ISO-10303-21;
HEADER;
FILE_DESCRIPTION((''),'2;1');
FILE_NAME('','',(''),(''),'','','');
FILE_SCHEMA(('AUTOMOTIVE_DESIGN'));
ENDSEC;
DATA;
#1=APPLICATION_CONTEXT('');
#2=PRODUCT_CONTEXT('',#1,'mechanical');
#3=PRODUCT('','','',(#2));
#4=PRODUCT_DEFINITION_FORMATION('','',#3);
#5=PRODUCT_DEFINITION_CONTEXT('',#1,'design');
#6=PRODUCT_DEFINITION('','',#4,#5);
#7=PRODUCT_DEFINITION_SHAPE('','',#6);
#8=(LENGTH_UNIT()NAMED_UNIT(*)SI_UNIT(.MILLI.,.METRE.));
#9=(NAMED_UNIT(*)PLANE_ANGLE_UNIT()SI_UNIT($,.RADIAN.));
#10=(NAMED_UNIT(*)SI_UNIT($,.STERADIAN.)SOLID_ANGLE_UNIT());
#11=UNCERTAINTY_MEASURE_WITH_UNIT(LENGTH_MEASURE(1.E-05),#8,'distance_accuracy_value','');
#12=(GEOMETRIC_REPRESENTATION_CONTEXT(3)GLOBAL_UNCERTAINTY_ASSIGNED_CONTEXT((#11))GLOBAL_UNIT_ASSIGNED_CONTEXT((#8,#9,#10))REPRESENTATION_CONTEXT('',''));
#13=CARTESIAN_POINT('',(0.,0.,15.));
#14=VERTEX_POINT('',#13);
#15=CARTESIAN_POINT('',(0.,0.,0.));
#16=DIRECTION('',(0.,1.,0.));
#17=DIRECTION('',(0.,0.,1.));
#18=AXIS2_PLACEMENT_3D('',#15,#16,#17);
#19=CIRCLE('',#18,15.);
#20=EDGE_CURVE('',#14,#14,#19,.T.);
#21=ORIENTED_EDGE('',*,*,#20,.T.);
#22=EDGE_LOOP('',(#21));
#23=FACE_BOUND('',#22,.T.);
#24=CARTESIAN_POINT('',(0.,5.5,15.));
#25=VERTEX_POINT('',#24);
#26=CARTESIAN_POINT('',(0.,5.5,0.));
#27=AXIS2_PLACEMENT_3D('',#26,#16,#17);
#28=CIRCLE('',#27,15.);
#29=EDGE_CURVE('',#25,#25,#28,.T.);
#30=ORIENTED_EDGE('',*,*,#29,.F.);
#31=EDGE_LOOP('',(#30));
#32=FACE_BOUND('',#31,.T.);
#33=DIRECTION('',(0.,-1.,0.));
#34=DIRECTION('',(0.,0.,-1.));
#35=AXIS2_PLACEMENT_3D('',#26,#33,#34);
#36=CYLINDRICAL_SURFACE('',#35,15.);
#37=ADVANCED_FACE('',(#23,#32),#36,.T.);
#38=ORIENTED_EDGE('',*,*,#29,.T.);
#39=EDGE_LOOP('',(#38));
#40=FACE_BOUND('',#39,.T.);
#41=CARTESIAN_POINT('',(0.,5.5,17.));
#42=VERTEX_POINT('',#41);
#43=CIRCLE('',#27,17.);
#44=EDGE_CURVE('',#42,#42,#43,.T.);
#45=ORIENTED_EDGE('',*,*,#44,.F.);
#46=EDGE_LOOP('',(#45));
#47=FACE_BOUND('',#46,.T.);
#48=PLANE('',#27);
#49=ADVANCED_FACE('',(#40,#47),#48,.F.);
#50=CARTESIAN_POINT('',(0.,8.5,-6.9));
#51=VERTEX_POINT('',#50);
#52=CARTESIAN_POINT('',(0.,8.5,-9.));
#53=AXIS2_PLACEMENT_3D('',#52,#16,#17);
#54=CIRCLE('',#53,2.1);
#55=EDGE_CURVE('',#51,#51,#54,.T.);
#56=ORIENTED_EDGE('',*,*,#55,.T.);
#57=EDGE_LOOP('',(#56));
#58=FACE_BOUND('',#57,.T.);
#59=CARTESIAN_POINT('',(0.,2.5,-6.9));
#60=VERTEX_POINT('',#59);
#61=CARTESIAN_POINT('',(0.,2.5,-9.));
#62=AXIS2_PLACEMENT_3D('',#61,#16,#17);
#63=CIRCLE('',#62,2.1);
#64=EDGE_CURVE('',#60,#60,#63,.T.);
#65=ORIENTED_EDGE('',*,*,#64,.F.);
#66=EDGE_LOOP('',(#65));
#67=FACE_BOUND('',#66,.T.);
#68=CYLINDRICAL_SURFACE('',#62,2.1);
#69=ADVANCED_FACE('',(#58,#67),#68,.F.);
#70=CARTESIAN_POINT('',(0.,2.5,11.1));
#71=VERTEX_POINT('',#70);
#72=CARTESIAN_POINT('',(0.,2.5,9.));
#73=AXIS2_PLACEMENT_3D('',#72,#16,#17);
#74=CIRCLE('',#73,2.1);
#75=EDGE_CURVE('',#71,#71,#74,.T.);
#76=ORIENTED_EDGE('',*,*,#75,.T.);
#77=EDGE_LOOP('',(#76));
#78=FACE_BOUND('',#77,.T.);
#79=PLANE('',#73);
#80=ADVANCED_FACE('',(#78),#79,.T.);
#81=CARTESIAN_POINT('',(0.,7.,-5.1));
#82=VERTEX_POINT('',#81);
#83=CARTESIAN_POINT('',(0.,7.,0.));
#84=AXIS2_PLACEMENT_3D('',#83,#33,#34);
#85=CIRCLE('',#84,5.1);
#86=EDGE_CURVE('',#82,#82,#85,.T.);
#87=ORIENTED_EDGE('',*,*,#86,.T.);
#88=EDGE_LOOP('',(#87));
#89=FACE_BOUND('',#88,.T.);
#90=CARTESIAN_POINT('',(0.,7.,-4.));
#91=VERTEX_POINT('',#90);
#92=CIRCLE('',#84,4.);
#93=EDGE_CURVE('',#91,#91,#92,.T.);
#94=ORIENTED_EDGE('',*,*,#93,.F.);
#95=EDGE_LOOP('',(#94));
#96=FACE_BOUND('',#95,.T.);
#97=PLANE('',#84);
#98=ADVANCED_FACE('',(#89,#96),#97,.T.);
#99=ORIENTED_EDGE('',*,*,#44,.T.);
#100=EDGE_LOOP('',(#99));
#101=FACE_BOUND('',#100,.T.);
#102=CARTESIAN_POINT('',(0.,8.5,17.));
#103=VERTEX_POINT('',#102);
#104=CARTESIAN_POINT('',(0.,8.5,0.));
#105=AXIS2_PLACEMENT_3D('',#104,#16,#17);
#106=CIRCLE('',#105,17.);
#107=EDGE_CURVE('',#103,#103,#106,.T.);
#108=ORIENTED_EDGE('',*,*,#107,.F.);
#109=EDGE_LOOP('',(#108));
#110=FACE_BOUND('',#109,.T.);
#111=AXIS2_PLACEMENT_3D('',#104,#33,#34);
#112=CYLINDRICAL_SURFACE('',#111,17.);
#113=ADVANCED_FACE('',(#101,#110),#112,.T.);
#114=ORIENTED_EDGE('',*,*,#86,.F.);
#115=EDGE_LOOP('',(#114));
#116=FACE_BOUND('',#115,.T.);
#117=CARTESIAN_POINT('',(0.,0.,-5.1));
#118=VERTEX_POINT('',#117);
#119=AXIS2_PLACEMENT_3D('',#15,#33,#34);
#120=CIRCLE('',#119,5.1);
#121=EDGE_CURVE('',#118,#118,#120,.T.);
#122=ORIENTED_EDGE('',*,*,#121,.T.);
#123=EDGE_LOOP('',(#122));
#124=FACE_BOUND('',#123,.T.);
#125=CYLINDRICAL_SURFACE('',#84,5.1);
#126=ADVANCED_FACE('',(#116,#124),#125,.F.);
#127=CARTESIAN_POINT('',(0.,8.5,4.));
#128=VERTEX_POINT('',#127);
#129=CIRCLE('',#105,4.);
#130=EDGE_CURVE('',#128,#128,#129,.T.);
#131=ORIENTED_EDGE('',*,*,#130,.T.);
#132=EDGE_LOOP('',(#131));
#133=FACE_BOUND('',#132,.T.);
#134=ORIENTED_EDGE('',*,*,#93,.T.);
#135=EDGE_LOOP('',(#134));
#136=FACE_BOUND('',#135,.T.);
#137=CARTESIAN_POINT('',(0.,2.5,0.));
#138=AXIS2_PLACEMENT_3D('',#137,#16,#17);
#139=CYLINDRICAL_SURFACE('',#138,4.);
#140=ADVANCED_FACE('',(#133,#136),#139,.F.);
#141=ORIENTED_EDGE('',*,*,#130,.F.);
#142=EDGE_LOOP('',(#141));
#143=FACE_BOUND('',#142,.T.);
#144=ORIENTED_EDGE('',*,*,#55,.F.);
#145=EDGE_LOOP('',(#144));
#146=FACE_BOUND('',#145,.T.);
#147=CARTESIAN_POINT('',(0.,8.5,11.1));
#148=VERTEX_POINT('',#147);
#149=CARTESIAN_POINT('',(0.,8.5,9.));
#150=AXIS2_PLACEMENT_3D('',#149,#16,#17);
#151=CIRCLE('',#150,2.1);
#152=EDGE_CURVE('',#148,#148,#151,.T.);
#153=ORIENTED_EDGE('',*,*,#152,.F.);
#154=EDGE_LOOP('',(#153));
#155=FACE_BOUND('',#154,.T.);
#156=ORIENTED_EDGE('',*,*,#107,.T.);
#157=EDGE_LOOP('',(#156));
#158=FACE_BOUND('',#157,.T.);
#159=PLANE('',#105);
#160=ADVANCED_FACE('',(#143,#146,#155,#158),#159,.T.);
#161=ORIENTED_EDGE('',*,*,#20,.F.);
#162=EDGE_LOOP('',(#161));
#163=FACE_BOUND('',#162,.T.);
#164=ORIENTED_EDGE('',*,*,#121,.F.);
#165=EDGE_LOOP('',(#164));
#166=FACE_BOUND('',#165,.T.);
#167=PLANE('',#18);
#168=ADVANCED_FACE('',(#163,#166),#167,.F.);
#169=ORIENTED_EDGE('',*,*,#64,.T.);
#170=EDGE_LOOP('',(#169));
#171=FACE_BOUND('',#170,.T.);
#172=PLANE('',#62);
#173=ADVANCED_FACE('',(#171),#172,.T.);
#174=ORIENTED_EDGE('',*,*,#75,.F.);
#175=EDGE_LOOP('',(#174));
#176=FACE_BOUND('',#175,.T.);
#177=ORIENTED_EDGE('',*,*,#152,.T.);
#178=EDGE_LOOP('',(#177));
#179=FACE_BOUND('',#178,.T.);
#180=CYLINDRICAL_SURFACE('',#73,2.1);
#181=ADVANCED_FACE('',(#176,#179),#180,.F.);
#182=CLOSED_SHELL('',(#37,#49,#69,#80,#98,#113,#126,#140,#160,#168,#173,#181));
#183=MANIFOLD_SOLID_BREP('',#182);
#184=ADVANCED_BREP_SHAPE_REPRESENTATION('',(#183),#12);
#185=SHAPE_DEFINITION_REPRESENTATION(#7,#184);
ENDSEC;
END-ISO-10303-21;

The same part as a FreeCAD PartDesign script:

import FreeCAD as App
import Part
import Sketcher
from FreeCAD import Vector

doc = App.newDocument("Part")
body = doc.addObject("PartDesign::Body", "Body")

# Sketch on XZ plane
sketch1 = body.newObject("Sketcher::SketchObject", "Sketch")
sketch1.AttachmentSupport = (doc.getObject("XZ_Plane"), [""])
sketch1.MapMode = "FlatFace"
sketch1.addGeometry(Part.Circle(Vector(0, 0, 0), Vector(0, 0, 1), 15), False)
sketch1.addConstraint([
    Sketcher.Constraint("Coincident", 0, 3, -1, 1),
    Sketcher.Constraint("Diameter", 0, 30.0),
])
pad1 = body.newObject("PartDesign::Pad", "Pad")
pad1.Profile = sketch1
pad1.Length = 5.5
pad1.Reversed = True

# Sketch on XZ plane
sketch2 = body.newObject("Sketcher::SketchObject", "Sketch001")
sketch2.AttachmentSupport = (doc.getObject("XZ_Plane"), [""])
sketch2.MapMode = "FlatFace"
sketch2.AttachmentOffset = App.Placement(Vector(0, 0, -5.5), App.Rotation())
sketch2.addGeometry(Part.Circle(Vector(0, 0, 0), Vector(0, 0, 1), 17), False)
sketch2.addConstraint([
    Sketcher.Constraint("Coincident", 0, 3, -1, 1),
    Sketcher.Constraint("Diameter", 0, 34.0),
])
pad2 = body.newObject("PartDesign::Pad", "Pad001")
pad2.Profile = sketch2
pad2.Length = 3
pad2.Reversed = True

# Sketch on XZ plane
sketch3 = body.newObject("Sketcher::SketchObject", "Sketch002")
sketch3.AttachmentSupport = (doc.getObject("XZ_Plane"), [""])
sketch3.MapMode = "FlatFace"
sketch3.addGeometry(Part.Circle(Vector(0, 0, 0), Vector(0, 0, 1), 5), False)
sketch3.addConstraint([
    Sketcher.Constraint("Coincident", 0, 3, -1, 1),
    Sketcher.Constraint("Diameter", 0, 10.2),
])
pocket1 = body.newObject("PartDesign::Pocket", "Pocket")
pocket1.Profile = sketch3
pocket1.Length = 7

# Sketch on XZ plane
sketch4 = body.newObject("Sketcher::SketchObject", "Sketch003")
sketch4.AttachmentSupport = (doc.getObject("XZ_Plane"), [""])
sketch4.MapMode = "FlatFace"
sketch4.AttachmentOffset = App.Placement(Vector(0, 0, -8.5), App.Rotation())
sketch4.addGeometry([
    Part.Circle(Vector(0, -9, 0), Vector(0, 0, 1), 2.1),
    Part.Circle(Vector(0, 9, 0), Vector(0, 0, 1), 2.1),
    Part.Circle(Vector(0, 0, 0), Vector(0, 0, 1), 4),
], False)
sketch4.addConstraint([
    Sketcher.Constraint("Coincident", 2, 3, -1, 1),
    Sketcher.Constraint("Equal", 0, 1),
    Sketcher.Constraint("Symmetric", 0, 3, 1, 3, -1, 1),
    Sketcher.Constraint("PointOnObject", 0, 3, -2),
    Sketcher.Constraint("Diameter", 2, 8.0),
    Sketcher.Constraint("Diameter", 0, 4.2),
    Sketcher.Constraint("DistanceY", 0, 3, -1, 1, 9.0),
])
pocket2 = body.newObject("PartDesign::Pocket", "Pocket001")
pocket2.Profile = sketch4
pocket2.Length = 6
pocket2.Reversed = True

doc.recompute()
